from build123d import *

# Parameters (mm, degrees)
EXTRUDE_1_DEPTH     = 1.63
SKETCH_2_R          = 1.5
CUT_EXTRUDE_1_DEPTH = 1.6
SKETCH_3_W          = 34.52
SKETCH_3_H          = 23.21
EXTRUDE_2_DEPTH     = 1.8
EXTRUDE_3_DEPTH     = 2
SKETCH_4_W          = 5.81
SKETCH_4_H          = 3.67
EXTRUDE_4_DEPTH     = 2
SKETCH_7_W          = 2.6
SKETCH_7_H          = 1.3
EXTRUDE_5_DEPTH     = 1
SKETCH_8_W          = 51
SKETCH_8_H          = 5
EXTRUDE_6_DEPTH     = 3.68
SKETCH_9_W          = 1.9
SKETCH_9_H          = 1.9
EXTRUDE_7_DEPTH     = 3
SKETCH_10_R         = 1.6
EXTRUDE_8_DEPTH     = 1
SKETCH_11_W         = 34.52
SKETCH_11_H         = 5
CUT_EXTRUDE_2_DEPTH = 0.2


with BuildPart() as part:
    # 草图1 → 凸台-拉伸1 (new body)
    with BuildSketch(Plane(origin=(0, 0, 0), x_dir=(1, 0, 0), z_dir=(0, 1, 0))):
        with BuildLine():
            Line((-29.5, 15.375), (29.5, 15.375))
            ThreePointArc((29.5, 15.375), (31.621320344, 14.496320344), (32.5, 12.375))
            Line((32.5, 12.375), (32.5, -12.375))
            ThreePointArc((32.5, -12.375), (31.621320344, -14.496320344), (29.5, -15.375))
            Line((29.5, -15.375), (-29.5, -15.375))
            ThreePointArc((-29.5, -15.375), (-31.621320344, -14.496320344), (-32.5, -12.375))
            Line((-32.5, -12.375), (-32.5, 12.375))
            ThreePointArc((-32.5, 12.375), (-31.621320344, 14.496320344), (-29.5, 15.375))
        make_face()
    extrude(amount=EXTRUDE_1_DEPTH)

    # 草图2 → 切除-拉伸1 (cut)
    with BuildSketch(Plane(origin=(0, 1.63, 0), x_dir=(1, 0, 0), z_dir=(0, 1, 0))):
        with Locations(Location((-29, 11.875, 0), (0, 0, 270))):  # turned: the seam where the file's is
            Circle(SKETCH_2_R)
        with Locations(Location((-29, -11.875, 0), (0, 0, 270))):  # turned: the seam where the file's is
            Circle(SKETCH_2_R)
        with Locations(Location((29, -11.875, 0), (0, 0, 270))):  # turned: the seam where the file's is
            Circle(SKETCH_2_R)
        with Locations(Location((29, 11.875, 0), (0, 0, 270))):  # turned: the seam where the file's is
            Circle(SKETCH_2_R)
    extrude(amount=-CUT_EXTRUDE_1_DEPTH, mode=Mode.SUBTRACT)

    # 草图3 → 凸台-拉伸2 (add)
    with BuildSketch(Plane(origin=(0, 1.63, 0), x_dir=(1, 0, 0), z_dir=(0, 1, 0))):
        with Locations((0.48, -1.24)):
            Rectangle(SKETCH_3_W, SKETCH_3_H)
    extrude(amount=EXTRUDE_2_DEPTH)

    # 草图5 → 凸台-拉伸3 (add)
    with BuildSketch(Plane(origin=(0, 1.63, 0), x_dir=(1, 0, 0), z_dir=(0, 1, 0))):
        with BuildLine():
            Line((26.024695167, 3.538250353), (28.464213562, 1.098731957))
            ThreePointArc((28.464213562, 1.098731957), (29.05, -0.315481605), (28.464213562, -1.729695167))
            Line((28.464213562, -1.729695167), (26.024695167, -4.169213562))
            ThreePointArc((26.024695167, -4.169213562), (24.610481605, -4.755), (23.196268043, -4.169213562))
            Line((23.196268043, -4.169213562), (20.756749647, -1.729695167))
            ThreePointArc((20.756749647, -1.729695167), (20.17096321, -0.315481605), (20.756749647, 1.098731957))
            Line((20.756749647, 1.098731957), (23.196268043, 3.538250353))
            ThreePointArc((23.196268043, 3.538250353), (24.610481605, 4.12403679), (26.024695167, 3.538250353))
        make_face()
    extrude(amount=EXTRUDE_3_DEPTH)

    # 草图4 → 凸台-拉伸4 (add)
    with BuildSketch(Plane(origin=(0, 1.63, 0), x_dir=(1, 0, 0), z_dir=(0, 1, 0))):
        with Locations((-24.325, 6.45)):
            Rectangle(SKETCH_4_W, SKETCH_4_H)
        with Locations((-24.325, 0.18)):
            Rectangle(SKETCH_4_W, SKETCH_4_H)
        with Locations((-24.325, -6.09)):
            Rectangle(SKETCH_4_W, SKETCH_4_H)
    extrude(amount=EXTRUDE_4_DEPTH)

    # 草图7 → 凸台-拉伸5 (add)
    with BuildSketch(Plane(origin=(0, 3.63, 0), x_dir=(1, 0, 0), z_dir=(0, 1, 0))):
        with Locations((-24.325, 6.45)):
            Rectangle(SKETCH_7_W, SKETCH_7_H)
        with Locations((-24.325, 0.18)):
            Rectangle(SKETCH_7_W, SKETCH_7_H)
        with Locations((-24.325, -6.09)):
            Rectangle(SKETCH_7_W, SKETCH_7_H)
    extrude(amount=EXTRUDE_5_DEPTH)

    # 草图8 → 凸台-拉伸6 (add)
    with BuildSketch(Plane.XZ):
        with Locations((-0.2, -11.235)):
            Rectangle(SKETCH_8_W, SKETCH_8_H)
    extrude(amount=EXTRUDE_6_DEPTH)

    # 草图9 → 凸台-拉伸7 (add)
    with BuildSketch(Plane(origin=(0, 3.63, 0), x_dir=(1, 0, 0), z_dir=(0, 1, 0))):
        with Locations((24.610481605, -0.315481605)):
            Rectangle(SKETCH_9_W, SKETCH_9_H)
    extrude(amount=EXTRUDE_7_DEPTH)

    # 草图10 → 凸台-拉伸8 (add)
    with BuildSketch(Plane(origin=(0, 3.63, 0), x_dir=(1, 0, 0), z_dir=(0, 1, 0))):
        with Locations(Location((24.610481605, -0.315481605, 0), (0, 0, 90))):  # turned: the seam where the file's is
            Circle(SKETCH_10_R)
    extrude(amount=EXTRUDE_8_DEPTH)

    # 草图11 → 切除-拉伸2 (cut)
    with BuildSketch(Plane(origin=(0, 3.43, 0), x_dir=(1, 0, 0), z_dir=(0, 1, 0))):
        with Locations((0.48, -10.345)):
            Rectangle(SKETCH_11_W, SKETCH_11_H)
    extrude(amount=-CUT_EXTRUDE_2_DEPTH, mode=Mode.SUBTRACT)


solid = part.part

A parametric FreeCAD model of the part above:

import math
import FreeCAD as App
import Part
import Sketcher
from FreeCAD import Vector


def add_polygon(sketch, points):
    """Adds a closed chain of lines whose ends are joined by coincident constraints."""
    first, n = sketch.GeometryCount, len(points)
    for a, b in zip(points, points[1:] + points[:1]):
        sketch.addGeometry(Part.LineSegment(App.Vector(*a, 0), App.Vector(*b, 0)), False)
    for i in range(n):
        sketch.addConstraint(Sketcher.Constraint("Coincident", first + i, 2, first + (i + 1) % n, 1))

doc = App.newDocument("Part")
body = doc.addObject("PartDesign::Body", "Body")

# Sketch on XZ plane
sketch1 = body.newObject("Sketcher::SketchObject", "Sketch")
sketch1.AttachmentSupport = (doc.getObject("XZ_Plane"), [""])
sketch1.MapMode = "FlatFace"
sketch1.addGeometry([
    Part.LineSegment(Vector(29.5, -15.4, 0), Vector(-29.5, -15.4, 0)),  # 0
    Part.ArcOfCircle(Part.Circle(Vector(-29.5, -12.4, 0), Vector(0, 0, 1), 3), math.radians(180), math.radians(270)),  # 1
    Part.LineSegment(Vector(-32.5, -12.4, 0), Vector(-32.5, 12.4, 0)),  # 2
    Part.ArcOfCircle(Part.Circle(Vector(-29.5, 12.4, 0), Vector(0, 0, 1), 3), math.radians(90), math.radians(180)),  # 3
    Part.LineSegment(Vector(-29.5, 15.4, 0), Vector(29.5, 15.4, 0)),  # 4
    Part.ArcOfCircle(Part.Circle(Vector(29.5, 12.4, 0), Vector(0, 0, 1), 3), math.radians(0), math.radians(90)),  # 5
    Part.LineSegment(Vector(32.5, 12.4, 0), Vector(32.5, -12.4, 0)),  # 6
    Part.ArcOfCircle(Part.Circle(Vector(29.5, -12.4, 0), Vector(0, 0, 1), 3), math.radians(-90), math.radians(0)),  # 7
], False)
sketch1.addConstraint([
    Sketcher.Constraint("Tangent", 0, 2, 1, 2),
    Sketcher.Constraint("Tangent", 1, 1, 2, 1),
    Sketcher.Constraint("Tangent", 2, 2, 3, 2),
    Sketcher.Constraint("Tangent", 3, 1, 4, 1),
    Sketcher.Constraint("Tangent", 4, 2, 5, 2),
    Sketcher.Constraint("Tangent", 5, 1, 6, 1),
    Sketcher.Constraint("Tangent", 6, 2, 7, 2),
    Sketcher.Constraint("Tangent", 7, 1, 0, 1),
    Sketcher.Constraint("Horizontal", 0),
    Sketcher.Constraint("Vertical", 2),
    Sketcher.Constraint("Horizontal", 4),
    Sketcher.Constraint("Vertical", 6),
    Sketcher.Constraint("Equal", 1, 3),
    Sketcher.Constraint("Equal", 3, 5),
    Sketcher.Constraint("Equal", 5, 7),
    Sketcher.Constraint("Symmetric", 1, 3, 5, 3, -1, 1),
    Sketcher.Constraint("Radius", 1, 3.0),
    Sketcher.Constraint("DistanceX", 0, 2, 0, 1, 59.0),
    Sketcher.Constraint("DistanceY", 2, 1, 2, 2, 24.75),
])
pad1 = body.newObject("PartDesign::Pad", "Pad")
pad1.Profile = sketch1
pad1.Length = 1.63
pad1.Reversed = True

# Sketch on XZ plane
sketch2 = body.newObject("Sketcher::SketchObject", "Sketch001")
sketch2.AttachmentSupport = (doc.getObject("XZ_Plane"), [""])
sketch2.MapMode = "FlatFace"
sketch2.AttachmentOffset = App.Placement(Vector(0, 0, -1.63), App.Rotation())
sketch2.addGeometry([
    Part.Circle(Vector(-29, -11.9, 0), Vector(0, 0, 1), 1.5),
    Part.Circle(Vector(-29, 11.9, 0), Vector(0, 0, 1), 1.5),
    Part.Circle(Vector(29, 11.9, 0), Vector(0, 0, 1), 1.5),
    Part.Circle(Vector(29, -11.9, 0), Vector(0, 0, 1), 1.5),
], False)
sketch2.addConstraint([
    Sketcher.Constraint("Equal", 0, 1),
    Sketcher.Constraint("Equal", 1, 2),
    Sketcher.Constraint("Equal", 2, 3),
    Sketcher.Constraint("Symmetric", 0, 3, 2, 3, -1, 1),
    Sketcher.Constraint("Symmetric", 1, 3, 3, 3, -1, 1),
    Sketcher.Constraint("Symmetric", 1, 3, 2, 3, -2),
    Sketcher.Constraint("Diameter", 0, 3.0),
    Sketcher.Constraint("DistanceX", 0, 3, -1, 1, 29.0),
    Sketcher.Constraint("DistanceY", 0, 3, 1, 3, 23.75),
])
pocket1 = body.newObject("PartDesign::Pocket", "Pocket")
pocket1.Profile = sketch2
pocket1.Length = 1.6
pocket1.Reversed = True

# Sketch on XZ plane
sketch3 = body.newObject("Sketcher::SketchObject", "Sketch002")
sketch3.AttachmentSupport = (doc.getObject("XZ_Plane"), [""])
sketch3.MapMode = "FlatFace"
sketch3.AttachmentOffset = App.Placement(Vector(0, 0, -1.63), App.Rotation())
add_polygon(sketch3, [(-17, -10), (-17, 13), (18, 13), (18, -10)])  # lines 0-3
sketch3.addConstraint([
    Sketcher.Constraint("Vertical", 0),
    Sketcher.Constraint("Horizontal", 1),
    Sketcher.Constraint("Vertical", 2),
    Sketcher.Constraint("Horizontal", 3),
    Sketcher.Constraint("DistanceX", 1, 1, 1, 2, 34.52),
    Sketcher.Constraint("DistanceY", 0, 1, 0, 2, 23.21),
    Sketcher.Constraint("DistanceX", 0, 2, -1, 1, 16.78),
    Sketcher.Constraint("DistanceY", -1, 1, 0, 2, 12.845),
])
pad2 = body.newObject("PartDesign::Pad", "Pad001")
pad2.Profile = sketch3
pad2.Length = 1.8
pad2.Reversed = True

# Sketch on XZ plane
sketch4 = body.newObject("Sketcher::SketchObject", "Sketch003")
sketch4.AttachmentSupport = (doc.getObject("XZ_Plane"), [""])
sketch4.MapMode = "FlatFace"
sketch4.AttachmentOffset = App.Placement(Vector(0, 0, -1.63), App.Rotation())
sketch4.addGeometry([
    Part.LineSegment(Vector(28.5, -1.1, 0), Vector(26, -3.5, 0)),  # 0
    Part.ArcOfCircle(Part.Circle(Vector(24.6, -2.1, 0), Vector(0, 0, 1), 2), math.radians(-135), math.radians(-45)),  # 1
    Part.LineSegment(Vector(23.2, -3.5, 0), Vector(20.8, -1.1, 0)),  # 2
    Part.ArcOfCircle(Part.Circle(Vector(22.2, 0.3, 0), Vector(0, 0, 1), 2), math.radians(135), math.radians(225)),  # 3
    Part.LineSegment(Vector(20.8, 1.7, 0), Vector(23.2, 4.2, 0)),  # 4
    Part.ArcOfCircle(Part.Circle(Vector(24.6, 2.8, 0), Vector(0, 0, 1), 2), math.radians(45), math.radians(135)),  # 5
    Part.LineSegment(Vector(26, 4.2, 0), Vector(28.5, 1.7, 0)),  # 6
    Part.ArcOfCircle(Part.Circle(Vector(27.1, 0.3, 0), Vector(0, 0, 1), 2), math.radians(-45), math.radians(45)),  # 7
], False)
sketch4.addConstraint([
    Sketcher.Constraint("Tangent", 0, 2, 1, 2),
    Sketcher.Constraint("Tangent", 1, 1, 2, 1),
    Sketcher.Constraint("Tangent", 2, 2, 3, 2),
    Sketcher.Constraint("Tangent", 3, 1, 4, 1),
    Sketcher.Constraint("Tangent", 4, 2, 5, 2),
    Sketcher.Constraint("Tangent", 5, 1, 6, 1),
    Sketcher.Constraint("Tangent", 6, 2, 7, 2),
    Sketcher.Constraint("Tangent", 7, 1, 0, 1),
    Sketcher.Constraint("Equal", 1, 3),
    Sketcher.Constraint("Equal", 3, 5),
    Sketcher.Constraint("Equal", 5, 7),
    Sketcher.Constraint("Perpendicular", 0, 2),
    Sketcher.Constraint("Perpendicular", 2, 4),
    Sketcher.Constraint("Perpendicular", 4, 6),
    Sketcher.Constraint("Horizontal", 3, 3, 7, 3),
    Sketcher.Constraint("Horizontal", 0, 2, 1, 1),
    Sketcher.Constraint("Radius", 1, 2.0),
    Sketcher.Constraint("Distance", 0, 3.45),
    Sketcher.Constraint("DistanceX", -1, 1, 7, 3, 27.05),
    Sketcher.Constraint("DistanceY", -1, 1, 5, 3, 2.755),
])
pad3 = body.newObject("PartDesign::Pad", "Pad002")
pad3.Profile = sketch4
pad3.Length = 2
pad3.Reversed = True

# Sketch on XZ plane
sketch5 = body.newObject("Sketcher::SketchObject", "Sketch004")
sketch5.AttachmentSupport = (doc.getObject("XZ_Plane"), [""])
sketch5.MapMode = "FlatFace"
sketch5.AttachmentOffset = App.Placement(Vector(0, 0, -1.63), App.Rotation())
add_polygon(sketch5, [(-27.2, -8.3), (-27.2, -4.6), (-21.4, -4.6), (-21.4, -8.3)])  # lines 0-3
add_polygon(sketch5, [(-27.2, -2), (-27.2, 1.7), (-21.4, 1.7), (-21.4, -2)])  # lines 4-7
add_polygon(sketch5, [(-27.2, 4.3), (-27.2, 7.9), (-21.4, 7.9), (-21.4, 4.3)])  # lines 8-11
sketch5.addConstraint([
    Sketcher.Constraint("Vertical", 0),
    Sketcher.Constraint("Horizontal", 1),
    Sketcher.Constraint("Vertical", 2),
    Sketcher.Constraint("Horizontal", 3),
    Sketcher.Constraint("Vertical", 4),
    Sketcher.Constraint("Horizontal", 5),
    Sketcher.Constraint("Vertical", 6),
    Sketcher.Constraint("Horizontal", 7),
    Sketcher.Constraint("Vertical", 8),
    Sketcher.Constraint("Horizontal", 9),
    Sketcher.Constraint("Vertical", 10),
    Sketcher.Constraint("Horizontal", 11),
    Sketcher.Constraint("Vertical", 3, 2, 4, 2),
    Sketcher.Constraint("Vertical", 2, 2, 5, 2),
    Sketcher.Constraint("Vertical", 7, 2, 8, 2),
    Sketcher.Constraint("Vertical", 6, 2, 9, 2),
    Sketcher.Constraint("Equal", 2, 4),
    Sketcher.Constraint("Equal", 6, 8),
    Sketcher.Constraint("DistanceX", 1, 1, 1, 2, 5.81),
    Sketcher.Constraint("DistanceY", 0, 1, 0, 2, 3.67),
    Sketcher.Constraint("DistanceY", 1, 2, 6, 2, 2.6),
    Sketcher.Constraint("DistanceY", 5, 2, 10, 2, 2.6),
    Sketcher.Constraint("DistanceX", 0, 2, -1, 1, 27.23),
    Sketcher.Constraint("DistanceY", 0, 2, -1, 1, 4.615),
])
pad4 = body.newObject("PartDesign::Pad", "Pad003")
pad4.Profile = sketch5
pad4.Length = 2
pad4.Reversed = True

# Sketch on XZ plane
sketch6 = body.newObject("Sketcher::SketchObject", "Sketch005")
sketch6.AttachmentSupport = (doc.getObject("XZ_Plane"), [""])
sketch6.MapMode = "FlatFace"
sketch6.AttachmentOffset = App.Placement(Vector(0, 0, -3.63), App.Rotation())
add_polygon(sketch6, [(-25.6, -7.1), (-25.6, -5.8), (-23, -5.8), (-23, -7.1)])  # lines 0-3
add_polygon(sketch6, [(-25.6, -0.8), (-25.6, 0.5), (-23, 0.5), (-23, -0.8)])  # lines 4-7
add_polygon(sketch6, [(-25.6, 5.4), (-25.6, 6.7), (-23, 6.7), (-23, 5.4)])  # lines 8-11
sketch6.addConstraint([
    Sketcher.Constraint("Vertical", 0),
    Sketcher.Constraint("Horizontal", 1),
    Sketcher.Constraint("Vertical", 2),
    Sketcher.Constraint("Horizontal", 3),
    Sketcher.Constraint("Vertical", 4),
    Sketcher.Constraint("Horizontal", 5),
    Sketcher.Constraint("Vertical", 6),
    Sketcher.Constraint("Horizontal", 7),
    Sketcher.Constraint("Vertical", 8),
    Sketcher.Constraint("Horizontal", 9),
    Sketcher.Constraint("Vertical", 10),
    Sketcher.Constraint("Horizontal", 11),
    Sketcher.Constraint("Vertical", 3, 2, 4, 2),
    Sketcher.Constraint("Vertical", 2, 2, 5, 2),
    Sketcher.Constraint("Vertical", 7, 2, 8, 2),
    Sketcher.Constraint("Vertical", 6, 2, 9, 2),
    Sketcher.Constraint("Equal", 2, 4),
    Sketcher.Constraint("Equal", 6, 8),
    Sketcher.Constraint("DistanceX", 1, 1, 1, 2, 2.6),
    Sketcher.Constraint("DistanceY", 0, 1, 0, 2, 1.3),
    Sketcher.Constraint("DistanceY", 0, 2, -1, 1, 5.8),
    Sketcher.Constraint("DistanceY", -1, 1, 4, 2, 0.47),
    Sketcher.Constraint("DistanceY", -1, 1, 8, 2, 6.74),
    Sketcher.Constraint("DistanceX", 0, 2, -1, 1, 25.625),
])
pad5 = body.newObject("PartDesign::Pad", "Pad004")
pad5.Profile = sketch6
pad5.Length = 1
pad5.Reversed = True

# Sketch on XZ plane
sketch7 = body.newObject("Sketcher::SketchObject", "Sketch006")
sketch7.AttachmentSupport = (doc.getObject("XZ_Plane"), [""])
sketch7.MapMode = "FlatFace"
add_polygon(sketch7, [(-26, -9), (-26, -14), (25, -14), (25, -9)])  # lines 0-3
sketch7.addConstraint([
    Sketcher.Constraint("Vertical", 0),
    Sketcher.Constraint("Horizontal", 1),
    Sketcher.Constraint("Vertical", 2),
    Sketcher.Constraint("Horizontal", 3),
    Sketcher.Constraint("DistanceX", 1, 1, 1, 2, 51.0),
    Sketcher.Constraint("DistanceY", 0, 2, 0, 1, 5.0),
    Sketcher.Constraint("DistanceX", 0, 2, -1, 1, 25.7),
    Sketcher.Constraint("DistanceY", 0, 2, -1, 1, 13.735),
])
pad6 = body.newObject("PartDesign::Pad", "Pad005")
pad6.Profile = sketch7
pad6.Length = 3.68

# Sketch on XZ plane
sketch8 = body.newObject("Sketcher::SketchObject", "Sketch007")
sketch8.AttachmentSupport = (doc.getObject("XZ_Plane"), [""])
sketch8.MapMode = "FlatFace"
sketch8.AttachmentOffset = App.Placement(Vector(0, 0, -3.63), App.Rotation())
add_polygon(sketch8, [(23.7, -0.6), (23.7, 1.3), (25.6, 1.3), (25.6, -0.6)])  # lines 0-3
sketch8.addConstraint([
    Sketcher.Constraint("Vertical", 0),
    Sketcher.Constraint("Horizontal", 1),
    Sketcher.Constraint("Vertical", 2),
    Sketcher.Constraint("Horizontal", 3),
    Sketcher.Constraint("Equal", 3, 0),
    Sketcher.Constraint("DistanceX", 1, 1, 1, 2, 1.9),
    Sketcher.Constraint("DistanceX", -1, 1, 0, 2, 23.660482),
    Sketcher.Constraint("DistanceY", -1, 1, 0, 2, 1.265482),
])
pad7 = body.newObject("PartDesign::Pad", "Pad006")
pad7.Profile = sketch8
pad7.Length = 3
pad7.Reversed = True

# Sketch on XZ plane
sketch9 = body.newObject("Sketcher::SketchObject", "Sketch008")
sketch9.AttachmentSupport = (doc.getObject("XZ_Plane"), [""])
sketch9.MapMode = "FlatFace"
sketch9.AttachmentOffset = App.Placement(Vector(0, 0, -3.63), App.Rotation())
sketch9.addGeometry(Part.Circle(Vector(24.6, 0.3, 0), Vector(0, 0, 1), 1.6), False)
sketch9.addConstraint([
    Sketcher.Constraint("Diameter", 0, 3.2),
    Sketcher.Constraint("DistanceX", -1, 1, 0, 3, 24.610482),
    Sketcher.Constraint("DistanceY", -1, 1, 0, 3, 0.315482),
])
pad8 = body.newObject("PartDesign::Pad", "Pad007")
pad8.Profile = sketch9
pad8.Length = 1
pad8.Reversed = True

# Sketch on XZ plane
sketch10 = body.newObject("Sketcher::SketchObject", "Sketch009")
sketch10.AttachmentSupport = (doc.getObject("XZ_Plane"), [""])
sketch10.MapMode = "FlatFace"
sketch10.AttachmentOffset = App.Placement(Vector(0, 0, -3.43), App.Rotation())
add_polygon(sketch10, [(-17, 8), (-17, 13), (18, 13), (18, 8)])  # lines 0-3
sketch10.addConstraint([
    Sketcher.Constraint("Vertical", 0),
    Sketcher.Constraint("Horizontal", 1),
    Sketcher.Constraint("Vertical", 2),
    Sketcher.Constraint("Horizontal", 3),
    Sketcher.Constraint("DistanceY", 0, 1, 0, 2, 5.0),
    Sketcher.Constraint("DistanceX", 1, 1, 1, 2, 34.52),
    Sketcher.Constraint("DistanceX", 0, 2, -1, 1, 16.78),
    Sketcher.Constraint("DistanceY", -1, 1, 0, 2, 12.845),
])
pocket2 = body.newObject("PartDesign::Pocket", "Pocket001")
pocket2.Profile = sketch10
pocket2.Length = 0.2
pocket2.Reversed = True

doc.recompute()
